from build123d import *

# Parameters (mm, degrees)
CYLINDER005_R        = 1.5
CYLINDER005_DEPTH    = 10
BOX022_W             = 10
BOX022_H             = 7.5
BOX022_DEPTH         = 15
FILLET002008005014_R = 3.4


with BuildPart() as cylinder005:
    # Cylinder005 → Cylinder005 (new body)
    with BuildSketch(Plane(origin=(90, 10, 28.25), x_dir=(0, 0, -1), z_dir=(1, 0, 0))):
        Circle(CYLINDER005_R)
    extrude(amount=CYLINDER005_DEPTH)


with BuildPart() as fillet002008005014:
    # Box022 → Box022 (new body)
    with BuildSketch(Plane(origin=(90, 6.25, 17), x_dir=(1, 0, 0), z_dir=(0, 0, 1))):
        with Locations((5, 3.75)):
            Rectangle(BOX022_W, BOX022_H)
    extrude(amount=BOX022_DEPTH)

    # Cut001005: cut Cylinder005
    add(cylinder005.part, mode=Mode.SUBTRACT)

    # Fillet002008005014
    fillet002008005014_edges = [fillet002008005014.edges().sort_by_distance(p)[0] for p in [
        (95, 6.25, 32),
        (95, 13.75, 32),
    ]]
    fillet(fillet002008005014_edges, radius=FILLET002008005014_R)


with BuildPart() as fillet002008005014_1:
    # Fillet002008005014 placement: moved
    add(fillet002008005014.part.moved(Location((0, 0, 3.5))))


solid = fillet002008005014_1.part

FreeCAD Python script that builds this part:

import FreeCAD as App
import Part
import Sketcher

V = App.Vector
Q = App.Units.Quantity


def edges_at(feature, points):
    """Names of the edges that pass closest to the given points."""
    edges = feature.Shape.Edges
    near = lambda p: min(range(len(edges)), key=lambda i: edges[i].distToShape(Part.Vertex(*p))[0])
    return sorted({f"Edge{near(p) + 1}" for p in points})

doc = App.newDocument("Part")
body = doc.addObject("PartDesign::Body", "Body")

# Sketch on YZ plane
sketch1 = body.newObject("Sketcher::SketchObject", "Sketch")
sketch1.AttachmentSupport = (doc.getObject("YZ_Plane"), [""])
sketch1.MapMode = "FlatFace"
sketch1.AttachmentOffset = App.Placement(V(0, 0, 90), App.Rotation())
sketch1.addGeometry(Part.Circle(V(10, 28.2, 0), V(0, 0, 1), 1.5), False)
sketch1.addConstraint([
    Sketcher.Constraint("Diameter", 0, Q("3 mm")),
    Sketcher.Constraint("DistanceX", -1, 1, 0, 3, Q("10 mm")),
    Sketcher.Constraint("DistanceY", -1, 1, 0, 3, Q("28.25 mm")),
])
pad1 = body.newObject("PartDesign::Pad", "Pad")
pad1.Profile = sketch1
pad1.Length = 10
body2 = doc.addObject("PartDesign::Body", "Body001")

# Sketch on XY plane
sketch2 = body2.newObject("Sketcher::SketchObject", "Sketch001")
sketch2.AttachmentSupport = (doc.getObject("XY_Plane001"), [""])
sketch2.MapMode = "FlatFace"
sketch2.AttachmentOffset = App.Placement(V(0, 0, 17), App.Rotation())
sketch2.addGeometry([
    Part.LineSegment(V(90, 14, 0), V(90, 6, 0)),
    Part.LineSegment(V(90, 6, 0), V(100, 6, 0)),
    Part.LineSegment(V(100, 6, 0), V(100, 14, 0)),
    Part.LineSegment(V(100, 14, 0), V(90, 14, 0)),
], False)
sketch2.addConstraint([
    Sketcher.Constraint("Coincident", 0, 2, 1, 1),
    Sketcher.Constraint("Coincident", 1, 2, 2, 1),
    Sketcher.Constraint("Coincident", 2, 2, 3, 1),
    Sketcher.Constraint("Coincident", 3, 2, 0, 1),
    Sketcher.Constraint("Vertical", 0),
    Sketcher.Constraint("Horizontal", 1),
    Sketcher.Constraint("Vertical", 2),
    Sketcher.Constraint("Horizontal", 3),
    Sketcher.Constraint("DistanceX", 1, 1, 1, 2, Q("10 mm")),
    Sketcher.Constraint("DistanceY", 0, 2, 0, 1, Q("7.5 mm")),
    Sketcher.Constraint("DistanceX", -1, 1, 0, 2, Q("90 mm")),
    Sketcher.Constraint("DistanceY", -1, 1, 0, 2, Q("6.25 mm")),
])
pad2 = body2.newObject("PartDesign::Pad", "Pad001")
pad2.Profile = sketch2
pad2.Length = 15
doc.recompute()

boolean = body2.newObject("PartDesign::Boolean", "Boolean")
boolean.Type = "Cut"
boolean.addObjects([body])
doc.recompute()

fillet = body2.newObject("PartDesign::Fillet", "Fillet")
fillet.Base = (boolean, edges_at(boolean, [(95, 6.25, 32), (95, 13.75, 32)]))
fillet.Radius = 3.4
body3 = doc.addObject("PartDesign::Body", "Body002")
doc.recompute()

body2.Placement = App.Placement(V(0, 0, 3.5), App.Rotation(V(0, 0, 1), 0))
boolean2 = body3.newObject("PartDesign::Boolean", "Boolean001")
boolean2.Type = "Fuse"
boolean2.addObjects([body2])

doc.recompute()
